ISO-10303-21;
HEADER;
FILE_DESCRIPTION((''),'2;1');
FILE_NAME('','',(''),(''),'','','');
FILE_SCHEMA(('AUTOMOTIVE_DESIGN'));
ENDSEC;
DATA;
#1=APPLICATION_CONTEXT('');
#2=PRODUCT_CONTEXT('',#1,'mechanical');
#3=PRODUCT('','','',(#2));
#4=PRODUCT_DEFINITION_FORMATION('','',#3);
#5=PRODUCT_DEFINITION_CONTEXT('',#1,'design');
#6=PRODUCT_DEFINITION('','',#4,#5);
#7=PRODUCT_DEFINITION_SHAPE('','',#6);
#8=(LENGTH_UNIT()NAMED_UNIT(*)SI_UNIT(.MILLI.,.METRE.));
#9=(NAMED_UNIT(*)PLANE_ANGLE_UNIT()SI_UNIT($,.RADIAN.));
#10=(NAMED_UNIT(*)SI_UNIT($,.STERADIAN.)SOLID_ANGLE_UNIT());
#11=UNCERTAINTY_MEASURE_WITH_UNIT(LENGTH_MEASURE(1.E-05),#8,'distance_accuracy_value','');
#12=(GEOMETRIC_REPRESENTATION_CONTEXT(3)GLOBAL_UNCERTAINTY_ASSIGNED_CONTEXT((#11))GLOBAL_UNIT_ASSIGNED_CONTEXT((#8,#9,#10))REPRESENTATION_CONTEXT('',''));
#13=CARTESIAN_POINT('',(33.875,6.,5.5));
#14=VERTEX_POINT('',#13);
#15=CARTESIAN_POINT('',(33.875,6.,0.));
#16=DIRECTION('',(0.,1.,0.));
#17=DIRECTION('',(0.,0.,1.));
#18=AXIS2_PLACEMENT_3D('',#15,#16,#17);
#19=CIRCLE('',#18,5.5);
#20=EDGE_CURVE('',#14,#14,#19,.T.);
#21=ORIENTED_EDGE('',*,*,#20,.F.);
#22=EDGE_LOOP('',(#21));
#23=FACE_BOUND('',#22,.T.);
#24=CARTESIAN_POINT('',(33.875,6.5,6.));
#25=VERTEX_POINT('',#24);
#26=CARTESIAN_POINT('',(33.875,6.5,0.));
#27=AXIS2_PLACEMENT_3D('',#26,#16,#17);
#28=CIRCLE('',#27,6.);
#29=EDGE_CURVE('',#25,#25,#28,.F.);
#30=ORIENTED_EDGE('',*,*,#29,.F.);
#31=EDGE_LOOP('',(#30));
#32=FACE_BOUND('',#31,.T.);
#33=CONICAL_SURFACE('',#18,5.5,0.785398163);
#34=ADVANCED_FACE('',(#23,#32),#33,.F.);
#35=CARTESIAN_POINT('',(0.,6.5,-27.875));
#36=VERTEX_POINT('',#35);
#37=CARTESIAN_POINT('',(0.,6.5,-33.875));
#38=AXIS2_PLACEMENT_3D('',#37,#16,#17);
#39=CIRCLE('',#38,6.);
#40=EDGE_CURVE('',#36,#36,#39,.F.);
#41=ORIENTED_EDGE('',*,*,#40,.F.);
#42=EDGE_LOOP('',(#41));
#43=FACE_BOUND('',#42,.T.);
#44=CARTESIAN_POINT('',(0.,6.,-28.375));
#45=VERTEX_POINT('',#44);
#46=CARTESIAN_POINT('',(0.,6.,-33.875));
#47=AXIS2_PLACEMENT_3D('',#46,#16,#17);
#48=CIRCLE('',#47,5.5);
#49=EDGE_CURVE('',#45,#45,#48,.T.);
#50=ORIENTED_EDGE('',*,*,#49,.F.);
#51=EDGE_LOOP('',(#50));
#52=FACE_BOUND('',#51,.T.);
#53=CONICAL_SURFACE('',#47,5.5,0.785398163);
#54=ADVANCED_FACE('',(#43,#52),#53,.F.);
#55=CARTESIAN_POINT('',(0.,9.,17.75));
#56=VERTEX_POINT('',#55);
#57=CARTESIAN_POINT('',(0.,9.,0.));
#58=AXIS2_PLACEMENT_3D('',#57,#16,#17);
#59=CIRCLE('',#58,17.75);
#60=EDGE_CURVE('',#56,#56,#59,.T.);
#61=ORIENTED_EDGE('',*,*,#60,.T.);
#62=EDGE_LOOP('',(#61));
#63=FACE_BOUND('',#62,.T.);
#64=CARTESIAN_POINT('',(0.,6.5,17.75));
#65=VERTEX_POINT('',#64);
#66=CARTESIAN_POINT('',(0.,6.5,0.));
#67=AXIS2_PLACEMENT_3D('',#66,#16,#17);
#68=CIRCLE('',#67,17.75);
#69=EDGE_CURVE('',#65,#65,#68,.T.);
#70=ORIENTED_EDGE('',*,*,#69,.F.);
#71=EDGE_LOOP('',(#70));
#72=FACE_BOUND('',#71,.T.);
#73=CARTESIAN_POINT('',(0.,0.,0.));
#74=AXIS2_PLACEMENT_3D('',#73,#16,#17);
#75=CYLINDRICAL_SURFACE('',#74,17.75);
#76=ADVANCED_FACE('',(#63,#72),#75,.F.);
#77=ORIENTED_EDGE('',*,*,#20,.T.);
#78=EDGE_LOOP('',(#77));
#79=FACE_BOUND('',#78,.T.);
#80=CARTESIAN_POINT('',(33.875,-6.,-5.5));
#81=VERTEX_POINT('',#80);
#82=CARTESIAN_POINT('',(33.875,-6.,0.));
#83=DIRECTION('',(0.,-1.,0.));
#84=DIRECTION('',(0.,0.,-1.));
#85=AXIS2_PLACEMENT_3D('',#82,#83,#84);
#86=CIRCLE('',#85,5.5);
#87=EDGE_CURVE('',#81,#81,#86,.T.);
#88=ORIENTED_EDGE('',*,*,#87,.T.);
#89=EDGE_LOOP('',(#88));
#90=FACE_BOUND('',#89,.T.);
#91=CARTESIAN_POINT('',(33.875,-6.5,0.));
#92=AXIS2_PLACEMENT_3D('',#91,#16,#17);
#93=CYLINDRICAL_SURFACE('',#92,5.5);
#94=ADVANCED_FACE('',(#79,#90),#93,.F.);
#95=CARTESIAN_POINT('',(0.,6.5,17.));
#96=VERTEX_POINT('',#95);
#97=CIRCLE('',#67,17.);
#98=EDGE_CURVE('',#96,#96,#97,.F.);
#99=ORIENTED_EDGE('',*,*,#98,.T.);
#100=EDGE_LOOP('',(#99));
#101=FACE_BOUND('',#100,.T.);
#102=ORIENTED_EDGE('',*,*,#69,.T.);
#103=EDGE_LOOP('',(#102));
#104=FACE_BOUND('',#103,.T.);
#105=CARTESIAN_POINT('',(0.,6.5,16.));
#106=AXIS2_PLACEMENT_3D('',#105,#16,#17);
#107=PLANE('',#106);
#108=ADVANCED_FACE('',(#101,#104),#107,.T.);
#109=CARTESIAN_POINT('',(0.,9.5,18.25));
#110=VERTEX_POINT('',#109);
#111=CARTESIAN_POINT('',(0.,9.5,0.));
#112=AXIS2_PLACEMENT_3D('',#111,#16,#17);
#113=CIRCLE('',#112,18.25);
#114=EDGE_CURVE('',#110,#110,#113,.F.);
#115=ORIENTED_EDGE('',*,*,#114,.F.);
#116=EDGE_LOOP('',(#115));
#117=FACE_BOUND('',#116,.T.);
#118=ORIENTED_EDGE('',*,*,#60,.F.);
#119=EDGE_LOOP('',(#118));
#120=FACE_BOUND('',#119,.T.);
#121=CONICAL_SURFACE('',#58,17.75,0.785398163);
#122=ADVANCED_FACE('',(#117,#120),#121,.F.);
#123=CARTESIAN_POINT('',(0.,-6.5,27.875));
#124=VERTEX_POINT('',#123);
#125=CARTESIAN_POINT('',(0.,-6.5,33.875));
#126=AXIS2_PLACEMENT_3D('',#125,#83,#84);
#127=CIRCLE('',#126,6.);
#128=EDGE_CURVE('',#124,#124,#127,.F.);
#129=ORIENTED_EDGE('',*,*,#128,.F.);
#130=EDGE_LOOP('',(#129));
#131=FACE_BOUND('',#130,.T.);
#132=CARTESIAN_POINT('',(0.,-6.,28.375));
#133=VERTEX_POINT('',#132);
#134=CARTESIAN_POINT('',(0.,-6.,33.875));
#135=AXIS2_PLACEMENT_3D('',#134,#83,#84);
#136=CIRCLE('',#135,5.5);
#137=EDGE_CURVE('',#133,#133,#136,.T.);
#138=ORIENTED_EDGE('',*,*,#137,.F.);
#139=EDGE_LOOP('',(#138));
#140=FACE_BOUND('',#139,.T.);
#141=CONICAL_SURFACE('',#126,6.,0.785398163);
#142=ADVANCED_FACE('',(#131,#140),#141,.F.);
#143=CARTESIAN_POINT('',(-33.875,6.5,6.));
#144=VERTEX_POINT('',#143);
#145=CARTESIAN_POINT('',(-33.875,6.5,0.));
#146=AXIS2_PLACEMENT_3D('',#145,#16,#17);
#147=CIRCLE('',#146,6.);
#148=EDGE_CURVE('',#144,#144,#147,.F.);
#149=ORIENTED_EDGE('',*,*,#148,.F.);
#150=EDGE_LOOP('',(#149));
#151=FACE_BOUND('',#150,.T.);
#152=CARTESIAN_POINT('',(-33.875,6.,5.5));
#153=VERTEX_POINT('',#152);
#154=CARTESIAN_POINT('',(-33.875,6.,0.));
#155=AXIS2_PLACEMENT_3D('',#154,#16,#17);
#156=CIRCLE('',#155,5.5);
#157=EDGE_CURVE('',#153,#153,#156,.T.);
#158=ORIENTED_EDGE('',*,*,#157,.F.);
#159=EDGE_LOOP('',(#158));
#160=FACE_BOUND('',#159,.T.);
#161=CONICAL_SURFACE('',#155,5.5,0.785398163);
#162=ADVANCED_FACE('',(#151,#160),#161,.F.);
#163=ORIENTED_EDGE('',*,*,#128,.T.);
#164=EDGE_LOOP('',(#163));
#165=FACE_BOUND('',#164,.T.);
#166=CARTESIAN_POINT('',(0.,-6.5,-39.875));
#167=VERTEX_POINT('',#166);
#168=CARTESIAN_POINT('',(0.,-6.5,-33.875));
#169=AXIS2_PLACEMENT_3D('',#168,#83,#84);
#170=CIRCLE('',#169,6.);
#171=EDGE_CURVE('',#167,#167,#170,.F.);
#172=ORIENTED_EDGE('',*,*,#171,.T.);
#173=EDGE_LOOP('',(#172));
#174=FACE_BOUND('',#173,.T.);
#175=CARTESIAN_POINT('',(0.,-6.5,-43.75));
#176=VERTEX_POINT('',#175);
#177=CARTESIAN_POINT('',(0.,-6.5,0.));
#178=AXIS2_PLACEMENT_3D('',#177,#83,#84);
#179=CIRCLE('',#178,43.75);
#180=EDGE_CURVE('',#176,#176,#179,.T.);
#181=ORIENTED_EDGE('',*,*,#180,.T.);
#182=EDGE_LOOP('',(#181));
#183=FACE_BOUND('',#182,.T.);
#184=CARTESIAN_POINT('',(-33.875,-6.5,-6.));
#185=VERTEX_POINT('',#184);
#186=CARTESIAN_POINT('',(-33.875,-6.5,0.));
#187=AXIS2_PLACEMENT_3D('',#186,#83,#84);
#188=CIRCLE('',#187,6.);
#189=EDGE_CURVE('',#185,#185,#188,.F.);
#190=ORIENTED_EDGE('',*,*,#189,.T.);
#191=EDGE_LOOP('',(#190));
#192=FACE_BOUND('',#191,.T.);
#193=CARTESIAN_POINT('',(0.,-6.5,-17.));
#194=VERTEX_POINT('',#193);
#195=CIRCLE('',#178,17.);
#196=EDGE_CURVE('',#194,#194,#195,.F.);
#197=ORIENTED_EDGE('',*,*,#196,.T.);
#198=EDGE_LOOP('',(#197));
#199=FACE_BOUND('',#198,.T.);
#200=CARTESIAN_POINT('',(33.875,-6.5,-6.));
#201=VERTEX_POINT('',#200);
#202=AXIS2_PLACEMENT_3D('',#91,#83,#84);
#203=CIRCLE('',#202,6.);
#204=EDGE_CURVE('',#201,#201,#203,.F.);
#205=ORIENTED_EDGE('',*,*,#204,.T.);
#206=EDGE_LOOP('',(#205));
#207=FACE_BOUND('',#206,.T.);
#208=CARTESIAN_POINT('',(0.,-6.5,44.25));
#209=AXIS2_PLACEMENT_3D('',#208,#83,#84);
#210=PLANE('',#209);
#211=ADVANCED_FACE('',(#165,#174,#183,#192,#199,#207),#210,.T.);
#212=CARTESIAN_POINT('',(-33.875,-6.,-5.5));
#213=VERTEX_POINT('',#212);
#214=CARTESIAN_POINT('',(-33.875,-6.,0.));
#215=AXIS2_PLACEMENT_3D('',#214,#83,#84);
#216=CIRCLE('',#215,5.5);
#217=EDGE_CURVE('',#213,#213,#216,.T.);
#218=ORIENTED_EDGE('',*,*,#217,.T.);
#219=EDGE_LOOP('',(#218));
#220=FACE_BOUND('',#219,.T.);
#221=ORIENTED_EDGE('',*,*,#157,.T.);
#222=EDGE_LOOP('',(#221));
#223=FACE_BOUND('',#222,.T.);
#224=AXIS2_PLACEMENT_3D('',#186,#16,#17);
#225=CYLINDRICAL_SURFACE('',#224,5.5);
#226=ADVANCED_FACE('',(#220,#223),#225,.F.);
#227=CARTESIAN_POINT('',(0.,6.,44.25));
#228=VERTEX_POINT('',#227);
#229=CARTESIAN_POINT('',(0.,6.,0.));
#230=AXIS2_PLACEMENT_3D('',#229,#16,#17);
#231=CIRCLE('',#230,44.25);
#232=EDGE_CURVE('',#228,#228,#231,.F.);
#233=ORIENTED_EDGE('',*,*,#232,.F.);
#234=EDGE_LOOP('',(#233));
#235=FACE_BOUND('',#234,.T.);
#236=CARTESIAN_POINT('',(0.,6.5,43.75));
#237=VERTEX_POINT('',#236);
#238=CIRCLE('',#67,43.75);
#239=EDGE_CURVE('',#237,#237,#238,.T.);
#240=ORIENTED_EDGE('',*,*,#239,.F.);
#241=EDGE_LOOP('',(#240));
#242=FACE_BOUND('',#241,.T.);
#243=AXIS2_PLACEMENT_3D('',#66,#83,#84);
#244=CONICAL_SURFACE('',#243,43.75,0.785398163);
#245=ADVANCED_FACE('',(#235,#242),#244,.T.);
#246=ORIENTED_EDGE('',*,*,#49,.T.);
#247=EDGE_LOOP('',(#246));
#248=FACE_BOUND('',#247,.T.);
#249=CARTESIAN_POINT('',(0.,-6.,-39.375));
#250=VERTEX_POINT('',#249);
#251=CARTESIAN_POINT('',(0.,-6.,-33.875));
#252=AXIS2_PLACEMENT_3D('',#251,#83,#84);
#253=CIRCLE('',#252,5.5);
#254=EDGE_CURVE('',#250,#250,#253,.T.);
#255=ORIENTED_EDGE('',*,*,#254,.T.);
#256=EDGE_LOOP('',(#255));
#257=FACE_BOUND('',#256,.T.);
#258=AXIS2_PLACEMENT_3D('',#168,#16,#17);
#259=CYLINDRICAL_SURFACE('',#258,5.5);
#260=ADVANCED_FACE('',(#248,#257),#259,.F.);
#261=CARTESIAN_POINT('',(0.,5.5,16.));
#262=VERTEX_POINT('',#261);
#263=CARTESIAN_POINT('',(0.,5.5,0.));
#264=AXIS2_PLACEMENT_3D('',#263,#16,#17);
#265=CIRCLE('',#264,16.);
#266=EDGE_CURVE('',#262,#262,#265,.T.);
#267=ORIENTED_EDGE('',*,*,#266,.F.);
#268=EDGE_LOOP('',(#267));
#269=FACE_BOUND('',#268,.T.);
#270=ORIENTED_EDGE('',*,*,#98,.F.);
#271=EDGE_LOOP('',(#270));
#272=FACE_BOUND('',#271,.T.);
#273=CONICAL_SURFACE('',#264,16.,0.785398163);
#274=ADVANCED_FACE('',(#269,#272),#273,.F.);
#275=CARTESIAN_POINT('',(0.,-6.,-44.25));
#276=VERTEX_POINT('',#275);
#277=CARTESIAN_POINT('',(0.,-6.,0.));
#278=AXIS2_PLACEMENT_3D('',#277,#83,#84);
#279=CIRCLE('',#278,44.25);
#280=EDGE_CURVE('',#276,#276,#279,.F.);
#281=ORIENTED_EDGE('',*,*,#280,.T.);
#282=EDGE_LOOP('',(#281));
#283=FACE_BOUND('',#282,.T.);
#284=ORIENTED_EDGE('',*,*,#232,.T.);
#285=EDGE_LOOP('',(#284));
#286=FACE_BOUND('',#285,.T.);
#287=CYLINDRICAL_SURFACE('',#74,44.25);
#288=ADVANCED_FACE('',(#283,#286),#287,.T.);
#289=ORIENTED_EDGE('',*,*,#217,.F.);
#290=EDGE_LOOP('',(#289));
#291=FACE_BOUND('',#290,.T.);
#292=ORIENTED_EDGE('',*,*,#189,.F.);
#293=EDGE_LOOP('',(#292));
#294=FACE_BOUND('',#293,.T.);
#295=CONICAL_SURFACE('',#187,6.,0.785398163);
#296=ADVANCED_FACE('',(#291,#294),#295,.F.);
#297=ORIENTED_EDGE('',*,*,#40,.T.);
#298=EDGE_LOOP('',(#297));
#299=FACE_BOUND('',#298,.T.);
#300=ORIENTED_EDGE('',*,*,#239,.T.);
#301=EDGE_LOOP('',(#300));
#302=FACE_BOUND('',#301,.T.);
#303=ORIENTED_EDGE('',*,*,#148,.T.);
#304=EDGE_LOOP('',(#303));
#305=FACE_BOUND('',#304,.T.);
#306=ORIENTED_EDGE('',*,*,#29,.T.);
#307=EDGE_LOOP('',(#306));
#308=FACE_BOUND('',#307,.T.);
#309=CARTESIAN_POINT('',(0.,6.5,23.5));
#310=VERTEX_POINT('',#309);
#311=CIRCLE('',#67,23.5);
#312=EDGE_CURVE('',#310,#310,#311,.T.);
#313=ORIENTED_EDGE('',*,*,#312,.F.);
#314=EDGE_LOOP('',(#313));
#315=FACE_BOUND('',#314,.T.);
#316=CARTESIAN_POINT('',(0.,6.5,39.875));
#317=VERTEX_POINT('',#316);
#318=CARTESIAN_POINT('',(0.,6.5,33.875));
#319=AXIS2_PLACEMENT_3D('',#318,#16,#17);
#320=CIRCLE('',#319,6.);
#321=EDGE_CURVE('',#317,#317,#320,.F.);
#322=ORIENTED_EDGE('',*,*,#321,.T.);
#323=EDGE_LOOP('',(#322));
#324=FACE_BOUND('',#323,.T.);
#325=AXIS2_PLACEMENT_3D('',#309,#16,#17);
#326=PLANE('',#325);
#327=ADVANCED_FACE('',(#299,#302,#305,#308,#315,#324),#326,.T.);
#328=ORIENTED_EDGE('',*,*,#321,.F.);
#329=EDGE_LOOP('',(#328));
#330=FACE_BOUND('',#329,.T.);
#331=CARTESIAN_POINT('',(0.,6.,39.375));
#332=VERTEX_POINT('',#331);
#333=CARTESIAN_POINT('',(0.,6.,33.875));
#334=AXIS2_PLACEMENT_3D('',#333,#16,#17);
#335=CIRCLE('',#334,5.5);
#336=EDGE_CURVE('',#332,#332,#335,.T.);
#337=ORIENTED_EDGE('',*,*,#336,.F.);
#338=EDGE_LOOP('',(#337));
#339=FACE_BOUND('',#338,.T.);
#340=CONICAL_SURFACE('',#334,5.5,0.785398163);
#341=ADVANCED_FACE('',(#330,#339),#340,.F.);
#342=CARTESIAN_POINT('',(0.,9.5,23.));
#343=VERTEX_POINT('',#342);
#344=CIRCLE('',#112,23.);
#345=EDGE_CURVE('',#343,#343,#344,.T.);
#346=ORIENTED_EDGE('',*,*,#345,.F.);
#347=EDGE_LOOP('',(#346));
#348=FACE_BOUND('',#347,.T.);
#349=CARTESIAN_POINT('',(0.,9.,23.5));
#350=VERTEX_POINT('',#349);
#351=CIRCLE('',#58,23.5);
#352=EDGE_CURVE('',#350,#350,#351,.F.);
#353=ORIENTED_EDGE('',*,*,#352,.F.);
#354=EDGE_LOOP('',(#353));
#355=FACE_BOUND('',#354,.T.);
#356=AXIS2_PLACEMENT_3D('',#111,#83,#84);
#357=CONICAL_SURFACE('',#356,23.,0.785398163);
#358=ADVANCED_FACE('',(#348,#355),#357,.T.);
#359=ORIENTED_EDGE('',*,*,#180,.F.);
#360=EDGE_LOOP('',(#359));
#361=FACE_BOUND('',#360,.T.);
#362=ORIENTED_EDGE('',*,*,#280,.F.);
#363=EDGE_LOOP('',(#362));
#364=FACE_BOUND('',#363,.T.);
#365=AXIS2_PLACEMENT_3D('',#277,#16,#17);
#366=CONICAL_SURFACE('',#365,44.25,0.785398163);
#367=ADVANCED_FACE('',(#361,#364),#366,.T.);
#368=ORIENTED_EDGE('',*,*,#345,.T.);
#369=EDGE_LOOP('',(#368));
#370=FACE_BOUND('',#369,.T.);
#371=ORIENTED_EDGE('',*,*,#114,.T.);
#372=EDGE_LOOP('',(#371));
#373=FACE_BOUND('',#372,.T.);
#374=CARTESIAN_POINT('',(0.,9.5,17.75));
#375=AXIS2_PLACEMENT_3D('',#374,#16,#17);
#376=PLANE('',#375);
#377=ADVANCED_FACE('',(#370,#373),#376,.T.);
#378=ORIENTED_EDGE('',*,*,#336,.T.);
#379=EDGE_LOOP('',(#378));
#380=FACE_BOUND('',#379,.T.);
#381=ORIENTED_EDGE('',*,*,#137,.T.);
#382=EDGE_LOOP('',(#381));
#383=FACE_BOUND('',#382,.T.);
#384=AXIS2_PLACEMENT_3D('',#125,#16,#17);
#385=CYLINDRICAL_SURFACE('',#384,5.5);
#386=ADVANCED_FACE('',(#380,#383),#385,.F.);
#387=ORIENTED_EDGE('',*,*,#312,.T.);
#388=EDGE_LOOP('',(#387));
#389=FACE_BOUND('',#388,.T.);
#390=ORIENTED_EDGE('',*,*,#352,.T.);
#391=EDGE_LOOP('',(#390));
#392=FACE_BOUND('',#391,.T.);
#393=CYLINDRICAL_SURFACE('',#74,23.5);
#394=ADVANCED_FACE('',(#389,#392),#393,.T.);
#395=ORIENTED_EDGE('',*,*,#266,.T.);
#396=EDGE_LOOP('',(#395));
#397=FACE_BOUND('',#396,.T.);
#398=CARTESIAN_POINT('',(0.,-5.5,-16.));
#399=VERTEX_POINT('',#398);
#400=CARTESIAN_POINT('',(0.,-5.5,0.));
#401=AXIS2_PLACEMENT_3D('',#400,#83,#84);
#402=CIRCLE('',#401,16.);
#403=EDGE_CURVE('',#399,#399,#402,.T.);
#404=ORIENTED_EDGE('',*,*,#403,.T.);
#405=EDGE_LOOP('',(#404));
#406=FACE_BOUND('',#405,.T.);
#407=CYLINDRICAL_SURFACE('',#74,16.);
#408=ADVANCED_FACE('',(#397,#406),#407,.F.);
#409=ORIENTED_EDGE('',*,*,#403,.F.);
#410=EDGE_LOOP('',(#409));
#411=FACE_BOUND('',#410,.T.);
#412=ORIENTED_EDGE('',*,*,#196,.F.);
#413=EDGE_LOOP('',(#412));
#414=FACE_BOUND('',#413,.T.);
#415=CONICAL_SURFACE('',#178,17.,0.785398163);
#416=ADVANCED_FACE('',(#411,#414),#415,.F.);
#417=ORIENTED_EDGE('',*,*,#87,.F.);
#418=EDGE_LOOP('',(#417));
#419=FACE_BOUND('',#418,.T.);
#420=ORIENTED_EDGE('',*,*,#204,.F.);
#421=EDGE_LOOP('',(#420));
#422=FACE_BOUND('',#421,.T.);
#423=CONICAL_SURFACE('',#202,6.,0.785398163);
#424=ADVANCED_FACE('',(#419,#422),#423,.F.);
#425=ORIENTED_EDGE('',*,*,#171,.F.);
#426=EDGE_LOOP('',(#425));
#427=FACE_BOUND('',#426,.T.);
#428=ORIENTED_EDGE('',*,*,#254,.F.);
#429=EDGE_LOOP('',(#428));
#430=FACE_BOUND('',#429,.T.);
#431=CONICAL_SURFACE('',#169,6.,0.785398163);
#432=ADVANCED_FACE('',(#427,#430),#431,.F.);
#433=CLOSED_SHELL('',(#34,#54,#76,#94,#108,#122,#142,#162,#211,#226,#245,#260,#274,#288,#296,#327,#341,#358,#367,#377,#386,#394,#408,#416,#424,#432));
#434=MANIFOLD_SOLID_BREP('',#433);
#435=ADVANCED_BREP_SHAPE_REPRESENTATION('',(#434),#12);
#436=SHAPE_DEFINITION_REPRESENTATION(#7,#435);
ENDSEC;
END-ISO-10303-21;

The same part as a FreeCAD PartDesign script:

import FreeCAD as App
import Part
import Sketcher


def edges_at(feature, points):
    """Names of the edges that pass closest to the given points."""
    edges = feature.Shape.Edges
    near = lambda p: min(range(len(edges)), key=lambda i: edges[i].distToShape(Part.Vertex(*p))[0])
    return sorted({f"Edge{near(p) + 1}" for p in points})

doc = App.newDocument("Part")
params = doc.addObject("Spreadsheet::Sheet", "Params")
for row, (alias, value) in enumerate([
    ("sketch1_width", "13 mm"),
    ("sketch1_width2", "3 mm"),
    ("sketch1_height", "1.75 mm"),
    ("sketch1_height2", "5.75 mm"),
    ("sketch1_height3", "20.75 mm"),
    ("revolution_angle", "360 deg"),
    ("sketch2_diameter", "11 mm"),
    ("chamfer_size", "1 mm"),
    ("chamfer2_size", "0.5 mm"),
], start=1):
    params.set(f"A{row}", alias)
    params.set(f"B{row}", "=" + value)
    params.setAlias(f"B{row}", alias)

body = doc.addObject("PartDesign::Body", "Body")

sketch1 = body.newObject("Sketcher::SketchObject", "Sketch")
sketch1.AttachmentSupport = (doc.getObject("YZ_Plane"), [""])
sketch1.MapMode = "FlatFace"
sketch1.addGeometry([
    Part.LineSegment(App.Vector(-6.5, 16, 0), App.Vector(6.5, 16, 0)),
    Part.LineSegment(App.Vector(6.5, 16, 0), App.Vector(6.5, 17.75, 0)),
    Part.LineSegment(App.Vector(6.5, 17.75, 0), App.Vector(9.5, 17.75, 0)),
    Part.LineSegment(App.Vector(9.5, 17.75, 0), App.Vector(9.5, 23.5, 0)),
    Part.LineSegment(App.Vector(9.5, 23.5, 0), App.Vector(6.5, 23.5, 0)),
    Part.LineSegment(App.Vector(6.5, 23.5, 0), App.Vector(6.5, 44.25, 0)),
    Part.LineSegment(App.Vector(6.5, 44.25, 0), App.Vector(-6.5, 44.25, 0)),
    Part.LineSegment(App.Vector(-6.5, 44.25, 0), App.Vector(-6.5, 16, 0)),
], False)
sketch1.addConstraint([
    Sketcher.Constraint("Coincident", 0, 2, 1, 1),
    Sketcher.Constraint("Coincident", 1, 2, 2, 1),
    Sketcher.Constraint("Coincident", 2, 2, 3, 1),
    Sketcher.Constraint("Coincident", 3, 2, 4, 1),
    Sketcher.Constraint("Coincident", 4, 2, 5, 1),
    Sketcher.Constraint("Coincident", 5, 2, 6, 1),
    Sketcher.Constraint("Coincident", 6, 2, 7, 1),
    Sketcher.Constraint("Coincident", 7, 2, 0, 1),
    Sketcher.Constraint("Horizontal", 0),
    Sketcher.Constraint("Vertical", 1),
    Sketcher.Constraint("Horizontal", 2),
    Sketcher.Constraint("Vertical", 3),
    Sketcher.Constraint("Horizontal", 4),
    Sketcher.Constraint("Vertical", 5),
    Sketcher.Constraint("Horizontal", 6),
    Sketcher.Constraint("Vertical", 7),
    Sketcher.Constraint("Vertical", 1, 2, 4, 2),
    Sketcher.Constraint("DistanceX", 0, 1, 0, 2, 13.0),
    Sketcher.Constraint("DistanceX", 2, 1, 2, 2, 3.0),
    Sketcher.Constraint("DistanceY", -1, 1, 0, 2, 16.0),
    Sketcher.Constraint("DistanceY", 1, 1, 1, 2, 1.75),
    Sketcher.Constraint("DistanceY", 3, 1, 3, 2, 5.75),
    Sketcher.Constraint("DistanceY", 5, 1, 5, 2, 20.75),
    Sketcher.Constraint("DistanceX", -1, 1, 0, 2, 6.5),
])
sketch1.setExpression("Constraints[17]", "Params.sketch1_width")
sketch1.setExpression("Constraints[18]", "Params.sketch1_width2")
sketch1.setExpression("Constraints[20]", "Params.sketch1_height")
sketch1.setExpression("Constraints[21]", "Params.sketch1_height2")
sketch1.setExpression("Constraints[22]", "Params.sketch1_height3")
revolution = body.newObject("PartDesign::Revolution", "Revolution")
revolution.Profile = sketch1
revolution.ReferenceAxis = (sketch1, ["H_Axis"])
revolution.setExpression("Angle", "Params.revolution_angle")

sketch2 = body.newObject("Sketcher::SketchObject", "Sketch001")
sketch2.AttachmentSupport = (doc.getObject("XZ_Plane"), [""])
sketch2.MapMode = "FlatFace"
sketch2.addGeometry([
    Part.Circle(App.Vector(0, -33.875, 0), App.Vector(0, 0, 1), 5.5),
    Part.Circle(App.Vector(33.875, 0, 0), App.Vector(0, 0, 1), 5.5),
    Part.Circle(App.Vector(0, 33.875, 0), App.Vector(0, 0, 1), 5.5),
    Part.Circle(App.Vector(-33.875, 0, 0), App.Vector(0, 0, 1), 5.5),
], False)
sketch2.addConstraint([
    Sketcher.Constraint("Equal", 0, 1),
    Sketcher.Constraint("Equal", 1, 2),
    Sketcher.Constraint("Equal", 2, 3),
    Sketcher.Constraint("Symmetric", 0, 3, 2, 3, -1, 1),
    Sketcher.Constraint("Symmetric", 1, 3, 3, 3, -1, 1),
    Sketcher.Constraint("PointOnObject", 0, 3, -2),
    Sketcher.Constraint("PointOnObject", 1, 3, -1),
    Sketcher.Constraint("Diameter", 0, 11.0),
    Sketcher.Constraint("DistanceY", 0, 3, 2, 3, 67.75),
    Sketcher.Constraint("DistanceX", 3, 3, 1, 3, 67.75),
])
sketch2.setExpression("Constraints[7]", "Params.sketch2_diameter")
pocket1 = body.newObject("PartDesign::Pocket", "Pocket")
pocket1.Profile = sketch2
pocket1.Type = "ThroughAll"
pocket1.Midplane = True
doc.recompute()

chamfer = body.newObject("PartDesign::Chamfer", "Chamfer")
chamfer.Base = (pocket1, edges_at(pocket1, [(0, 6.5, -16), (0, -6.5, -16)]))
chamfer.setExpression("Size", "Params.chamfer_size")
doc.recompute()

chamfer2 = body.newObject("PartDesign::Chamfer", "Chamfer001")
chamfer2.Base = (chamfer, edges_at(chamfer, [
    (0, 6.5, -39.375),
    (0, -6.5, -39.375),
    (33.875, 6.5, -5.5),
    (33.875, -6.5, -5.5),
    (0, 6.5, 28.375),
    (0, -6.5, 28.375),
    (-33.875, 6.5, -5.5),
    (-33.875, -6.5, -5.5),
    (0, -6.5, -44.25),
    (0, 6.5, -44.25),
    (0, 9.5, -23.5),
    (0, 9.5, -17.75),
]))
chamfer2.setExpression("Size", "Params.chamfer2_size")

doc.recompute()
